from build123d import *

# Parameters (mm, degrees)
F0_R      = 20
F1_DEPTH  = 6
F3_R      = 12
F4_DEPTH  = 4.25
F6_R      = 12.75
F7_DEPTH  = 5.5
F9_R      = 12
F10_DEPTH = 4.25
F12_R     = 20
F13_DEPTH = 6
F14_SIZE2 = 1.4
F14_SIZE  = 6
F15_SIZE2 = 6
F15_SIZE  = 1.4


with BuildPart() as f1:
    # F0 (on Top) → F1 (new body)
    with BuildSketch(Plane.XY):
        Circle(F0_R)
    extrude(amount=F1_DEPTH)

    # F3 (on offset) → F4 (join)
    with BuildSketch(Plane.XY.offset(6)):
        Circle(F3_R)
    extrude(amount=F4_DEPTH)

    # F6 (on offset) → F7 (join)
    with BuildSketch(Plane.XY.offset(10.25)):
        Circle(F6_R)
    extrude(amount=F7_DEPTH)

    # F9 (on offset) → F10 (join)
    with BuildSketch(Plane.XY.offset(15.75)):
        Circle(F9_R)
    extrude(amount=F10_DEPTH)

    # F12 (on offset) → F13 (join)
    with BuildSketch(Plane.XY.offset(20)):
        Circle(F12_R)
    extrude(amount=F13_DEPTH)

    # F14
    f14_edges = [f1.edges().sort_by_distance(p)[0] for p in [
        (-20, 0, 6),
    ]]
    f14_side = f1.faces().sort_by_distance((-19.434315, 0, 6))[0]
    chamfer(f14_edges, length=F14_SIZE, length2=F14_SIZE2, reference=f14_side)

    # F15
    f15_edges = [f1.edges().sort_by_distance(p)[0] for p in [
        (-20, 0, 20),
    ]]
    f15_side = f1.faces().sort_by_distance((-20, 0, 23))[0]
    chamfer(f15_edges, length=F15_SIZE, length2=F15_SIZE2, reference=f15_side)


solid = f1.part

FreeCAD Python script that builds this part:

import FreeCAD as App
import Part
import Sketcher


def edges_at(feature, points):
    """Names of the edges that pass closest to the given points."""
    edges = feature.Shape.Edges
    near = lambda p: min(range(len(edges)), key=lambda i: edges[i].distToShape(Part.Vertex(*p))[0])
    return sorted({f"Edge{near(p) + 1}" for p in points})

doc = App.newDocument("Part")
body = doc.addObject("PartDesign::Body", "Body")

# Sketch on XY plane
sketch1 = body.newObject("Sketcher::SketchObject", "Sketch")
sketch1.AttachmentSupport = (doc.getObject("XY_Plane"), [""])
sketch1.MapMode = "FlatFace"
sketch1.addGeometry(Part.Circle(App.Vector(0, 0, 0), App.Vector(0, 0, 1), 20), False)
sketch1.addConstraint(Sketcher.Constraint("Coincident", 0, 3, -1, 1))
sketch1.addConstraint(Sketcher.Constraint("Diameter", 0, 40.0))
pad1 = body.newObject("PartDesign::Pad", "Pad")
pad1.Profile = sketch1
pad1.Length = 6

# Sketch on XY plane
sketch2 = body.newObject("Sketcher::SketchObject", "Sketch001")
sketch2.AttachmentSupport = (doc.getObject("XY_Plane"), [""])
sketch2.MapMode = "FlatFace"
sketch2.AttachmentOffset = App.Placement(App.Vector(0, 0, 6), App.Rotation())
sketch2.addGeometry(Part.Circle(App.Vector(0, 0, 0), App.Vector(0, 0, 1), 12), False)
sketch2.addConstraint(Sketcher.Constraint("Coincident", 0, 3, -1, 1))
sketch2.addConstraint(Sketcher.Constraint("Diameter", 0, 24.0))
pad2 = body.newObject("PartDesign::Pad", "Pad001")
pad2.Profile = sketch2
pad2.Length = 4.25

# Sketch on XY plane
sketch3 = body.newObject("Sketcher::SketchObject", "Sketch002")
sketch3.AttachmentSupport = (doc.getObject("XY_Plane"), [""])
sketch3.MapMode = "FlatFace"
sketch3.AttachmentOffset = App.Placement(App.Vector(0, 0, 10.25), App.Rotation())
sketch3.addGeometry(Part.Circle(App.Vector(0, 0, 0), App.Vector(0, 0, 1), 13), False)
sketch3.addConstraint(Sketcher.Constraint("Coincident", 0, 3, -1, 1))
sketch3.addConstraint(Sketcher.Constraint("Diameter", 0, 25.5))
pad3 = body.newObject("PartDesign::Pad", "Pad002")
pad3.Profile = sketch3
pad3.Length = 5.5

# Sketch on XY plane
sketch4 = body.newObject("Sketcher::SketchObject", "Sketch003")
sketch4.AttachmentSupport = (doc.getObject("XY_Plane"), [""])
sketch4.MapMode = "FlatFace"
sketch4.AttachmentOffset = App.Placement(App.Vector(0, 0, 15.75), App.Rotation())
sketch4.addGeometry(Part.Circle(App.Vector(0, 0, 0), App.Vector(0, 0, 1), 12), False)
sketch4.addConstraint(Sketcher.Constraint("Coincident", 0, 3, -1, 1))
sketch4.addConstraint(Sketcher.Constraint("Diameter", 0, 24.0))
pad4 = body.newObject("PartDesign::Pad", "Pad003")
pad4.Profile = sketch4
pad4.Length = 4.25

# Sketch on XY plane
sketch5 = body.newObject("Sketcher::SketchObject", "Sketch004")
sketch5.AttachmentSupport = (doc.getObject("XY_Plane"), [""])
sketch5.MapMode = "FlatFace"
sketch5.AttachmentOffset = App.Placement(App.Vector(0, 0, 20), App.Rotation())
sketch5.addGeometry(Part.Circle(App.Vector(0, 0, 0), App.Vector(0, 0, 1), 20), False)
sketch5.addConstraint(Sketcher.Constraint("Coincident", 0, 3, -1, 1))
sketch5.addConstraint(Sketcher.Constraint("Diameter", 0, 40.0))
pad5 = body.newObject("PartDesign::Pad", "Pad004")
pad5.Profile = sketch5
pad5.Length = 6
doc.recompute()

chamfer = body.newObject("PartDesign::Chamfer", "Chamfer")
chamfer.Base = (pad5, edges_at(pad5, [(-20, 0, 6)]))
chamfer.ChamferType = "Two distances"
chamfer.Size = 6
chamfer.Size2 = 1.4
chamfer.FlipDirection = True
doc.recompute()

chamfer2 = body.newObject("PartDesign::Chamfer", "Chamfer001")
chamfer2.Base = (chamfer, edges_at(chamfer, [(-20, 0, 20)]))
chamfer2.ChamferType = "Two distances"
chamfer2.Size = 1.4
chamfer2.Size2 = 6
chamfer2.FlipDirection = True

doc.recompute()
